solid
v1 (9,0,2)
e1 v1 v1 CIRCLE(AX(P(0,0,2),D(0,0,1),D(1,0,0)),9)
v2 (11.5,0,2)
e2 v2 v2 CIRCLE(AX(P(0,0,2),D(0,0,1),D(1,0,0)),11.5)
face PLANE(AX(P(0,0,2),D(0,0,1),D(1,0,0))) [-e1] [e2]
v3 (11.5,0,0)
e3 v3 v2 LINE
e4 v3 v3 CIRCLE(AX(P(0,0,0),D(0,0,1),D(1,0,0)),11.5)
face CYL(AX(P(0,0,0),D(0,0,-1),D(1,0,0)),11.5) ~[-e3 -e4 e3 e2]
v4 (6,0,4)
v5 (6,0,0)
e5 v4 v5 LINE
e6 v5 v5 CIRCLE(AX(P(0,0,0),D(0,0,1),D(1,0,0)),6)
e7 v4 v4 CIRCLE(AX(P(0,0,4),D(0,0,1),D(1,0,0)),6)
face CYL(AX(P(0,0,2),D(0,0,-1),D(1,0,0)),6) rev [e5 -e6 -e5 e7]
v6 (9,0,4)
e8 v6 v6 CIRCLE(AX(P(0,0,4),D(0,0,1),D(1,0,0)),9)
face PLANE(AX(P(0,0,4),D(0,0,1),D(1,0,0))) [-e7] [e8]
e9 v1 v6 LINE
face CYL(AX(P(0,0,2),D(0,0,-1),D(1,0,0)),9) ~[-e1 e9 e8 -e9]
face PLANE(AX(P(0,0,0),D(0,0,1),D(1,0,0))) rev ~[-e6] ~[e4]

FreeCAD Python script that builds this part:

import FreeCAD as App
import Part
import Sketcher

V = App.Vector
Q = App.Units.Quantity

doc = App.newDocument("Part")
body = doc.addObject("PartDesign::Body", "Body")

sketch1 = doc.addObject("Sketcher::SketchObject", "Sketch")
body.addObject(sketch1)
sketch1.AttachmentSupport = (doc.XY_Plane, [""])
sketch1.MapMode = "FlatFace"
sketch1.addGeometry([
    Part.Circle(V(0, 0, 0), V(0, 0, 1), 12),
    Part.Circle(V(0, 0, 0), V(0, 0, 1), 6),
], False)
sketch1.addConstraint([
    Sketcher.Constraint("Coincident", 0, 3, -1, 1),
    Sketcher.Constraint("Coincident", 1, 3, -1, 1),
    Sketcher.Constraint("Diameter", 0, Q("23 mm")),
    Sketcher.Constraint("Diameter", 1, Q("12 mm")),
])
pad1 = doc.addObject("PartDesign::Pad", "Pad")
body.addObject(pad1)
pad1.Profile = sketch1
pad1.Length = 2

sketch2 = doc.addObject("Sketcher::SketchObject", "Sketch001")
body.addObject(sketch2)
sketch2.AttachmentSupport = (doc.XY_Plane, [""])
sketch2.MapMode = "FlatFace"
sketch2.AttachmentOffset = App.Placement(V(0, 0, 2), App.Rotation())
sketch2.addGeometry([
    Part.Circle(V(0, 0, 0), V(0, 0, 1), 9),
    Part.Circle(V(0, 0, 0), V(0, 0, 1), 6),
], False)
sketch2.addConstraint([
    Sketcher.Constraint("Coincident", 0, 3, -1, 1),
    Sketcher.Constraint("Coincident", 1, 3, -1, 1),
    Sketcher.Constraint("Diameter", 0, Q("18 mm")),
    Sketcher.Constraint("Diameter", 1, Q("12 mm")),
])
pad2 = doc.addObject("PartDesign::Pad", "Pad001")
body.addObject(pad2)
pad2.Profile = sketch2
pad2.Length = 2

doc.recompute()
